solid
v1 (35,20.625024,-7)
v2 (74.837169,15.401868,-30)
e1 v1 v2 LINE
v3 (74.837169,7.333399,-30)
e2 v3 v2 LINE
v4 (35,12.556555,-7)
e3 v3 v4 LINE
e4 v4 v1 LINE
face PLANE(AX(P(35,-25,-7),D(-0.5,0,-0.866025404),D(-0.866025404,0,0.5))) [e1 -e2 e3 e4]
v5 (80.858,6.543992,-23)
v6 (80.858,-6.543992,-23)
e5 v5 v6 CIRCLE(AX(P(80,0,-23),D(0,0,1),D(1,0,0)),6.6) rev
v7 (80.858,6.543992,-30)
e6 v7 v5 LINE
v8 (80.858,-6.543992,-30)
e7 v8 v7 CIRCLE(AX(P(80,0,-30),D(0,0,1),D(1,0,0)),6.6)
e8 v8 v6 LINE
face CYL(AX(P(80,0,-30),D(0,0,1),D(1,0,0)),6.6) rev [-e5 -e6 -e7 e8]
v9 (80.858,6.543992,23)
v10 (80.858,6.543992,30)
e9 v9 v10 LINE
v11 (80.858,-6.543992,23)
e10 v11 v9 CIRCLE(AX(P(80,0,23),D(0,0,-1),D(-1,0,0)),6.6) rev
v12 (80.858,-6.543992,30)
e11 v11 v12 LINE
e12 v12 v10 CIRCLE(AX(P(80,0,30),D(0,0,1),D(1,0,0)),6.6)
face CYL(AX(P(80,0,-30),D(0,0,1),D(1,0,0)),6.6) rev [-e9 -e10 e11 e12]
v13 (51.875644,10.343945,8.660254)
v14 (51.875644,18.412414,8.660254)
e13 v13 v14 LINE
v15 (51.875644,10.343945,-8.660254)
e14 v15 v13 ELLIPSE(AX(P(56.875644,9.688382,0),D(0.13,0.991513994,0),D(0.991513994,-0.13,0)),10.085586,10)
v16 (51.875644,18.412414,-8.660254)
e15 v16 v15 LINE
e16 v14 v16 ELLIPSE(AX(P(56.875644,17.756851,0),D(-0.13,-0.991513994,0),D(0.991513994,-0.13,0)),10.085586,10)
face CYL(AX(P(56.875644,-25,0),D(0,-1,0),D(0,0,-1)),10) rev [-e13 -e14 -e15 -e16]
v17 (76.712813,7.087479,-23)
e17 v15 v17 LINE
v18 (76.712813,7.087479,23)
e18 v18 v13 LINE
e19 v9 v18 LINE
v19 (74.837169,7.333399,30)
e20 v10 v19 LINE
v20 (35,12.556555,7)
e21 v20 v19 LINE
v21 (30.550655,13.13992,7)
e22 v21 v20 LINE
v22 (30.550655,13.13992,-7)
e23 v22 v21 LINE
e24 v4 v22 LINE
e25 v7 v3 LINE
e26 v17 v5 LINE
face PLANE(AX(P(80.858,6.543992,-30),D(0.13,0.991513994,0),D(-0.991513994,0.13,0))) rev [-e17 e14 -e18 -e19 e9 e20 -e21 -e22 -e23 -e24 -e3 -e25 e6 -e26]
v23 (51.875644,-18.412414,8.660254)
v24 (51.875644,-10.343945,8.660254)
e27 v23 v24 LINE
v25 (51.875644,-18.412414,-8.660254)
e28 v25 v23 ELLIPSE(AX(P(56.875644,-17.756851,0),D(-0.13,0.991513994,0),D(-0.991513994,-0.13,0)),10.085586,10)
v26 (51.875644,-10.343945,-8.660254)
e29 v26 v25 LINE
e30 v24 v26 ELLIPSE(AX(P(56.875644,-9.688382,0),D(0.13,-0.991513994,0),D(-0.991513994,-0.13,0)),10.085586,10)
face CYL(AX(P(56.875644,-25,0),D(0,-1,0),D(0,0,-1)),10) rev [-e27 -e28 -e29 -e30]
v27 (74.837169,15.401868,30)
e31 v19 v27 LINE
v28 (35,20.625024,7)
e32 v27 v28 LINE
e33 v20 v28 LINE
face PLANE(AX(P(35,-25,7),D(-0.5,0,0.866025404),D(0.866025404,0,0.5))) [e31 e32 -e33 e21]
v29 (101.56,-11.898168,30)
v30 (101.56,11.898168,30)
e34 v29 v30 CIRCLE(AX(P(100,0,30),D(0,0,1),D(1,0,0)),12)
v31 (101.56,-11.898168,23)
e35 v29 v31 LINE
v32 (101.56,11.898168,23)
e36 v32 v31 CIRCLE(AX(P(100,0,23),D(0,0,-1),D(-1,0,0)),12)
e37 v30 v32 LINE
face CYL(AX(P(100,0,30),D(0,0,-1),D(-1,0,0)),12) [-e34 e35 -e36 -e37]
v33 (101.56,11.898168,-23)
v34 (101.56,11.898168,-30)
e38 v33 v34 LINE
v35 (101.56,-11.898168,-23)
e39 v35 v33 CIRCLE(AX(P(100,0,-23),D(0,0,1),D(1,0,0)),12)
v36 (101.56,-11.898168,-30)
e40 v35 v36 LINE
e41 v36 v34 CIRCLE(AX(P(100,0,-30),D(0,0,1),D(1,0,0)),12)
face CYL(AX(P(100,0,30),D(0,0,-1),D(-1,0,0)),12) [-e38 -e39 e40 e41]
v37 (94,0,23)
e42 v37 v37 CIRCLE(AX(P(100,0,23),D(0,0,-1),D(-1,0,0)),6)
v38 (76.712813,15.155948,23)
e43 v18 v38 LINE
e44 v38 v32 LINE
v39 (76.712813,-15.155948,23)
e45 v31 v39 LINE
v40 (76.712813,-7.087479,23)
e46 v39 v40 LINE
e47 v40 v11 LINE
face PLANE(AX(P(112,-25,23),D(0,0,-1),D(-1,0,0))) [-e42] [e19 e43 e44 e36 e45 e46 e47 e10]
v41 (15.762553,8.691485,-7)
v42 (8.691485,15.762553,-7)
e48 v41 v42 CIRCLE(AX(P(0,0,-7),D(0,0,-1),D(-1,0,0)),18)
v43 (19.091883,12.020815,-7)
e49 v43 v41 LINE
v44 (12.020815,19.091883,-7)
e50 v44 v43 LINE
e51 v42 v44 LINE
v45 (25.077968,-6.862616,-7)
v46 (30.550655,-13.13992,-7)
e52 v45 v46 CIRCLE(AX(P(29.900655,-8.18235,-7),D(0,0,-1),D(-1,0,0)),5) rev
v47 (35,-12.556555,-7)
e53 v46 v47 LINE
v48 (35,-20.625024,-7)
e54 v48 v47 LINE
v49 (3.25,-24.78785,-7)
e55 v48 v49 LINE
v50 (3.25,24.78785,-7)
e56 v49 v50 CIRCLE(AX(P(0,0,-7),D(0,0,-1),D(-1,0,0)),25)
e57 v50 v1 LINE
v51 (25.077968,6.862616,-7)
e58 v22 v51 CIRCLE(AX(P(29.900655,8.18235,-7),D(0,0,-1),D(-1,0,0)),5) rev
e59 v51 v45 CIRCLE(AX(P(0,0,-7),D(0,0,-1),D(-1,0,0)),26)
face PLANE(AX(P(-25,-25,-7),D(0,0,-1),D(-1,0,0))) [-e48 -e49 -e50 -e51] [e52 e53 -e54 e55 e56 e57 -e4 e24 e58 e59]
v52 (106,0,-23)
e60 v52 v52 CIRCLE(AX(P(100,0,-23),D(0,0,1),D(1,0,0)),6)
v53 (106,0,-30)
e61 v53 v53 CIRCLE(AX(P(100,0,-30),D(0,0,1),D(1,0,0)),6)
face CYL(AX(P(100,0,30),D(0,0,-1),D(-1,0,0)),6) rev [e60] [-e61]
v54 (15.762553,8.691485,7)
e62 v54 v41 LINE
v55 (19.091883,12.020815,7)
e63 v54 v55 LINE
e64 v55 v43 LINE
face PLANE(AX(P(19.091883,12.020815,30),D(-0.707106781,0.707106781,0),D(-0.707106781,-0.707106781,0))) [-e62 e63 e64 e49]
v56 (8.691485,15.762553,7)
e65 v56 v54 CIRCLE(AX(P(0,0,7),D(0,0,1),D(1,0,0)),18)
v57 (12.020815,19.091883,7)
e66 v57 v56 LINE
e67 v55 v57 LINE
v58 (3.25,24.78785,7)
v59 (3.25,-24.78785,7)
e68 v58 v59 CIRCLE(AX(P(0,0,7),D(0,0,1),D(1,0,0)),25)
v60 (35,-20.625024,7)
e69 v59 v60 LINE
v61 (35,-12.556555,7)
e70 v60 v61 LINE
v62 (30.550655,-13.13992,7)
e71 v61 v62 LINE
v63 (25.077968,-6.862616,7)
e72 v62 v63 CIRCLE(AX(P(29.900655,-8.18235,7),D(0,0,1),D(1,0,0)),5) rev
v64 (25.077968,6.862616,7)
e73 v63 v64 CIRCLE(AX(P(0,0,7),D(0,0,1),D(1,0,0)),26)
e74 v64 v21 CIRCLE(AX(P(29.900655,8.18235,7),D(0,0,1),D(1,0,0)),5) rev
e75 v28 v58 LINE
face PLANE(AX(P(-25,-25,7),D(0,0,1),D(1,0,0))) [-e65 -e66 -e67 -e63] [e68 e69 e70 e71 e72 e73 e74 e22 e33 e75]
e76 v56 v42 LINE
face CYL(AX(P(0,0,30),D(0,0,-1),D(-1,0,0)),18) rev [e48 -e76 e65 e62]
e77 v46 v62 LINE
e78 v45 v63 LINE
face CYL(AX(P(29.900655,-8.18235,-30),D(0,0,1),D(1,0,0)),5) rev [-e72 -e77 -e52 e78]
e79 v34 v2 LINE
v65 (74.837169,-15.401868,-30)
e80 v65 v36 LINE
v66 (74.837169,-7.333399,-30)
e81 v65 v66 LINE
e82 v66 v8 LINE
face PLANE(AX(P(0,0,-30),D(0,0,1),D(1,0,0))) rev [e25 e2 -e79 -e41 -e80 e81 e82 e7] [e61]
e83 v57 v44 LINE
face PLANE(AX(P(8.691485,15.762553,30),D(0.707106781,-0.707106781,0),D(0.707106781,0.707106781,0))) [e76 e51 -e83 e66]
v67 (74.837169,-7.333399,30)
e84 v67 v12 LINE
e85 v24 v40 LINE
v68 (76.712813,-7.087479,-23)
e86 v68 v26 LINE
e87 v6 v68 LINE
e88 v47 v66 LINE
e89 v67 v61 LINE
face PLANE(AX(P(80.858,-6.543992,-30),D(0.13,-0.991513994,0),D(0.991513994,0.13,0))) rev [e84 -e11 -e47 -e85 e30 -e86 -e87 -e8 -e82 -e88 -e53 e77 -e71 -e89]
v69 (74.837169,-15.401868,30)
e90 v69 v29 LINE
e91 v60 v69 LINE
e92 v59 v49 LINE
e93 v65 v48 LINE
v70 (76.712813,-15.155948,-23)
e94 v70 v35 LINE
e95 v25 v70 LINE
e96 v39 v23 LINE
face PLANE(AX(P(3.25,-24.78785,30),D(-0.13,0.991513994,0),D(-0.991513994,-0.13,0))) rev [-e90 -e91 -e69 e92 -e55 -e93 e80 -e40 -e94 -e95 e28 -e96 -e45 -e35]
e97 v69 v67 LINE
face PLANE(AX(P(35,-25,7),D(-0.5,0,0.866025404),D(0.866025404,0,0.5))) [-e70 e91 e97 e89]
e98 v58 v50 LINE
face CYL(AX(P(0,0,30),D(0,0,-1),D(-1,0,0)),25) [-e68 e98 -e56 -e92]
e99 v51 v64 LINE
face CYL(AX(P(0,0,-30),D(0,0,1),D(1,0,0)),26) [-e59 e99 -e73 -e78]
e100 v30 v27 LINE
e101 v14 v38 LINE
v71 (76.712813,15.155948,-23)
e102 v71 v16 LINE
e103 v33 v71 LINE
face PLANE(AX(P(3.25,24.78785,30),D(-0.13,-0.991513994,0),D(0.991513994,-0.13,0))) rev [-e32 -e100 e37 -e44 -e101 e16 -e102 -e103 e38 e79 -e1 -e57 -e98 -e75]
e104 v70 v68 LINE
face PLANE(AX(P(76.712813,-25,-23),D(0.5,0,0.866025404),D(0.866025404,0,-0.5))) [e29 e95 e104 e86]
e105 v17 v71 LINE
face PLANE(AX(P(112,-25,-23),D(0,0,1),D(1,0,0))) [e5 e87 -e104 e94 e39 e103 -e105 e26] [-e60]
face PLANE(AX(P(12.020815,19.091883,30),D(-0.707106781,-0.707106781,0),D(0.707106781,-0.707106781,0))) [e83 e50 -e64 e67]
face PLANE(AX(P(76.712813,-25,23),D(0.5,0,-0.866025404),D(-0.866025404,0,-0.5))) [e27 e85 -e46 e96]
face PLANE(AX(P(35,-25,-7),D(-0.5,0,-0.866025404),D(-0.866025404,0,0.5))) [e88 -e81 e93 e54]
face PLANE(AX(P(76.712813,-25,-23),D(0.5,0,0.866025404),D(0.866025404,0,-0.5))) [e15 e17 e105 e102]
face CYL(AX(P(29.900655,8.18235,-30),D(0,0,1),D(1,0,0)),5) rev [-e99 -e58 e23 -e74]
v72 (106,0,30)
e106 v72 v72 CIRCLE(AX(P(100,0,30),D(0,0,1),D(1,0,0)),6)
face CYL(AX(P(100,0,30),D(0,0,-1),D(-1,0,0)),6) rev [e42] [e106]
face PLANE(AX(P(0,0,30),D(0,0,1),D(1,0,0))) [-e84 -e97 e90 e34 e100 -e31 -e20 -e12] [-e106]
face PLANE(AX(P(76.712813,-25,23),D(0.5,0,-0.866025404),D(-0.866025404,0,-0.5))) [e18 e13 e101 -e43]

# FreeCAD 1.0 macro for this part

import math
import FreeCAD as App
import Part
import Sketcher
from FreeCAD import Vector
Q = App.Units.Quantity


def edges_at(feature, points):
    """Names of the edges that pass closest to the given points."""
    edges = feature.Shape.Edges
    near = lambda p: min(range(len(edges)), key=lambda i: edges[i].distToShape(Part.Vertex(*p))[0])
    return sorted({f"Edge{near(p) + 1}" for p in points})


def add_polygon(sketch, points):
    """Adds a closed chain of lines whose ends are joined by coincident constraints."""
    first, n = sketch.GeometryCount, len(points)
    for a, b in zip(points, points[1:] + points[:1]):
        sketch.addGeometry(Part.LineSegment(App.Vector(*a, 0), App.Vector(*b, 0)), False)
    for i in range(n):
        sketch.addConstraint(Sketcher.Constraint("Coincident", first + i, 2, first + (i + 1) % n, 1))

doc = App.newDocument("Part")
params = doc.addObject("Spreadsheet::Sheet", "Params")
for row, (alias, value) in enumerate([
    ("sketch1_diameter", "12 mm"),
    ("sketch1_radius", "25 mm"),
    ("sketch1_radius2", "12 mm"),
    ("sketch1_radius3", "18 mm"),
    ("sketch1_length", "10 mm"),
    ("pad1_length", "60 mm"),
    ("sketch2_radius", "5 mm"),
    ("sketch2_radius2", "26 mm"),
    ("sketch2_radius3", "6.6 mm"),
    ("sketch3_width", "60 mm"),
    ("sketch3_height", "14 mm"),
    ("sketch3_length", "46 mm"),
    ("sketch3_width2", "170.54 mm"),
    ("sketch3_height2", "93.54 mm"),
    ("fillet_radius", "10 mm"),
], start=1):
    params.set(f"A{row}", alias)
    params.set(f"B{row}", "=" + value)
    params.setAlias(f"B{row}", alias)

body = doc.addObject("PartDesign::Body", "Body")

# Sketch on XY plane
sketch1 = body.newObject("Sketcher::SketchObject", "Sketch")
sketch1.AttachmentSupport = (doc.getObject("XY_Plane"), [""])
sketch1.MapMode = "FlatFace"
sketch1.addGeometry(Part.LineSegment(Vector(101.6, 11.9, 0), Vector(3.2, 24.8, 0)), False)
sketch1.addGeometry(Part.ArcOfCircle(Part.Circle(Vector(0, 0, 0), Vector(0, 0, 1), 25), math.radians(83), math.radians(277)), False)
sketch1.addGeometry(Part.LineSegment(Vector(3.2, -24.8, 0), Vector(101.6, -11.9, 0)), False)
sketch1.addGeometry(Part.ArcOfCircle(Part.Circle(Vector(100, 0, 0), Vector(0, 0, 1), 12), math.radians(-83), math.radians(83)), False)
sketch1.addGeometry(Part.Circle(Vector(100, 0, 0), Vector(0, 0, 1), 6), False)
sketch1.addGeometry(Part.LineSegment(Vector(8.7, 15.8, 0), Vector(12, 19.1, 0)), False)
sketch1.addGeometry(Part.LineSegment(Vector(12, 19.1, 0), Vector(19.1, 12, 0)), False)
sketch1.addGeometry(Part.LineSegment(Vector(19.1, 12, 0), Vector(15.8, 8.7, 0)), False)
sketch1.addGeometry(Part.ArcOfCircle(Part.Circle(Vector(0, 0, 0), Vector(0, 0, 1), 18), math.radians(61), math.radians(389)), False)
sketch1.addConstraint(Sketcher.Constraint("Tangent", 0, 2, 1, 1))
sketch1.addConstraint(Sketcher.Constraint("Tangent", 1, 2, 2, 1))
sketch1.addConstraint(Sketcher.Constraint("Tangent", 2, 2, 3, 1))
sketch1.addConstraint(Sketcher.Constraint("Tangent", 3, 2, 0, 1))
sketch1.addConstraint(Sketcher.Constraint("Coincident", 5, 2, 6, 1))
sketch1.addConstraint(Sketcher.Constraint("Coincident", 6, 2, 7, 1))
sketch1.addConstraint(Sketcher.Constraint("Coincident", 7, 2, 8, 2))
sketch1.addConstraint(Sketcher.Constraint("Coincident", 8, 1, 5, 1))
sketch1.addConstraint(Sketcher.Constraint("Coincident", 1, 3, -1, 1))
sketch1.addConstraint(Sketcher.Constraint("Coincident", 8, 3, -1, 1))
sketch1.addConstraint(Sketcher.Constraint("Coincident", 4, 3, 3, 3))
sketch1.addConstraint(Sketcher.Constraint("PointOnObject", 3, 3, -1))
sketch1.addConstraint(Sketcher.Constraint("Perpendicular", 5, 6))
sketch1.addConstraint(Sketcher.Constraint("Perpendicular", 6, 7))
sketch1.addConstraint(Sketcher.Constraint("Equal", 5, 7))
sketch1.addConstraint(Sketcher.Constraint("Diameter", 4, 12.0))
sketch1.addConstraint(Sketcher.Constraint("Radius", 1, 25.0))
sketch1.addConstraint(Sketcher.Constraint("Radius", 3, 12.0))
sketch1.addConstraint(Sketcher.Constraint("Radius", 8, 18.0))
sketch1.addConstraint(Sketcher.Constraint("Angle", 5, Q("45 deg")))
sketch1.addConstraint(Sketcher.Constraint("Distance", 6, 10.0))
sketch1.addConstraint(Sketcher.Constraint("DistanceX", -1, 1, 3, 3, 100.0))
sketch1.addConstraint(Sketcher.Constraint("DistanceX", 7, 2, 6, 2, 3.32933))
sketch1.setExpression("Constraints[15]", "Params.sketch1_diameter")
sketch1.setExpression("Constraints[16]", "Params.sketch1_radius")
sketch1.setExpression("Constraints[17]", "Params.sketch1_radius2")
sketch1.setExpression("Constraints[18]", "Params.sketch1_radius3")
sketch1.setExpression("Constraints[20]", "Params.sketch1_length")
pad1 = body.newObject("PartDesign::Pad", "Pad")
pad1.Profile = sketch1
pad1.setExpression("Length", "Params.pad1_length")
pad1.Midplane = True

# Sketch on XY plane
sketch2 = body.newObject("Sketcher::SketchObject", "Sketch001")
sketch2.AttachmentSupport = (doc.getObject("XY_Plane"), [""])
sketch2.MapMode = "FlatFace"
sketch2.AttachmentOffset = App.Placement(Vector(0, 0, 30), App.Rotation())
sketch2.addGeometry(Part.LineSegment(Vector(81, 7, 0), Vector(31, 13, 0)), False)
sketch2.addGeometry(Part.ArcOfCircle(Part.Circle(Vector(30, 8, 0), Vector(0, 0, 1), 5), math.radians(83), math.radians(195)), False)
sketch2.addGeometry(Part.ArcOfCircle(Part.Circle(Vector(0, 0, 0), Vector(0, 0, 1), 26), math.radians(-15), math.radians(15)), False)
sketch2.addGeometry(Part.ArcOfCircle(Part.Circle(Vector(30, -8, 0), Vector(0, 0, 1), 5), math.radians(165), math.radians(277)), False)
sketch2.addGeometry(Part.LineSegment(Vector(31, -13, 0), Vector(81, -7, 0)), False)
sketch2.addGeometry(Part.ArcOfCircle(Part.Circle(Vector(80, 0, 0), Vector(0, 0, 1), 7), math.radians(-83), math.radians(83)), False)
sketch2.addConstraint(Sketcher.Constraint("Tangent", 0, 2, 1, 1))
sketch2.addConstraint(Sketcher.Constraint("Tangent", 1, 2, 2, 2))
sketch2.addConstraint(Sketcher.Constraint("Tangent", 2, 1, 3, 1))
sketch2.addConstraint(Sketcher.Constraint("Tangent", 3, 2, 4, 1))
sketch2.addConstraint(Sketcher.Constraint("Tangent", 4, 2, 5, 1))
sketch2.addConstraint(Sketcher.Constraint("Tangent", 5, 2, 0, 1))
sketch2.addConstraint(Sketcher.Constraint("Coincident", 2, 3, -1, 1))
sketch2.addConstraint(Sketcher.Constraint("Equal", 1, 3))
sketch2.addConstraint(Sketcher.Constraint("Symmetric", 0, 2, 3, 2, -1))
sketch2.addConstraint(Sketcher.Constraint("Radius", 1, 5.0))
sketch2.addConstraint(Sketcher.Constraint("Radius", 2, 26.0))
sketch2.addConstraint(Sketcher.Constraint("Radius", 5, 6.6))
sketch2.addConstraint(Sketcher.Constraint("DistanceX", -1, 1, 5, 3, 80.0))
sketch2.addConstraint(Sketcher.Constraint("DistanceX", 1, 3, 0, 2, 0.65))
sketch2.setExpression("Constraints[9]", "Params.sketch2_radius")
sketch2.setExpression("Constraints[10]", "Params.sketch2_radius2")
sketch2.setExpression("Constraints[11]", "Params.sketch2_radius3")
pocket1 = body.newObject("PartDesign::Pocket", "Pocket")
pocket1.Profile = sketch2
pocket1.Type = "ThroughAll"

# Sketch on XZ plane
sketch3 = body.newObject("Sketcher::SketchObject", "Sketch002")
sketch3.AttachmentSupport = (doc.getObject("XZ_Plane"), [""])
sketch3.MapMode = "FlatFace"
add_polygon(sketch3, [(-42, -47), (-42, 47), (129, 47), (129, -47)])  # lines 0-3
add_polygon(sketch3, [(-25, 7), (-25, -7), (35, -7), (75, -30), (112, -30), (112, -23), (77, -23), (37, 0), (77, 23), (112, 23), (112, 30), (75, 30), (35, 7)])  # lines 4-16
sketch3.addConstraint(Sketcher.Constraint("Vertical", 0))
sketch3.addConstraint(Sketcher.Constraint("Horizontal", 1))
sketch3.addConstraint(Sketcher.Constraint("Vertical", 2))
sketch3.addConstraint(Sketcher.Constraint("Horizontal", 3))
sketch3.addConstraint(Sketcher.Constraint("Vertical", 4))
sketch3.addConstraint(Sketcher.Constraint("Horizontal", 5))
sketch3.addConstraint(Sketcher.Constraint("Horizontal", 7))
sketch3.addConstraint(Sketcher.Constraint("Vertical", 8))
sketch3.addConstraint(Sketcher.Constraint("Horizontal", 9))
sketch3.addConstraint(Sketcher.Constraint("Horizontal", 12))
sketch3.addConstraint(Sketcher.Constraint("Vertical", 13))
sketch3.addConstraint(Sketcher.Constraint("Horizontal", 14))
sketch3.addConstraint(Sketcher.Constraint("Horizontal", 16))
sketch3.addConstraint(Sketcher.Constraint("Symmetric", 9, 2, 11, 2, -1))
sketch3.addConstraint(Sketcher.Constraint("Symmetric", 7, 2, 13, 2, -1))
sketch3.addConstraint(Sketcher.Constraint("Symmetric", 5, 2, 15, 2, -1))
sketch3.addConstraint(Sketcher.Constraint("PointOnObject", 10, 2, -1))
sketch3.addConstraint(Sketcher.Constraint("Parallel", 6, 10))
sketch3.addConstraint(Sketcher.Constraint("Parallel", 11, 15))
sketch3.addConstraint(Sketcher.Constraint("Equal", 6, 10))
sketch3.addConstraint(Sketcher.Constraint("DistanceX", 5, 1, 5, 2, 60.0))
sketch3.addConstraint(Sketcher.Constraint("DistanceY", 4, 2, 4, 1, 14.0))
sketch3.addConstraint(Sketcher.Constraint("Angle", 6, Q("-30 deg")))
sketch3.addConstraint(Sketcher.Constraint("Distance", 6, 46.0))
sketch3.addConstraint(Sketcher.Constraint("DistanceX", 4, 2, -1, 1, 25.0))
sketch3.addConstraint(Sketcher.Constraint("DistanceX", -1, 1, 7, 2, 112.0))
sketch3.addConstraint(Sketcher.Constraint("DistanceX", 1, 1, 1, 2, 170.54))
sketch3.addConstraint(Sketcher.Constraint("DistanceY", 0, 1, 0, 2, 93.54))
sketch3.addConstraint(Sketcher.Constraint("DistanceX", 0, 2, -1, 1, 41.77))
sketch3.addConstraint(Sketcher.Constraint("DistanceY", -1, 1, 0, 2, 46.77))
sketch3.addConstraint(Sketcher.Constraint("DistanceX", 9, 2, 9, 1, 35.287187))
sketch3.setExpression("Constraints[37]", "Params.sketch3_width")
sketch3.setExpression("Constraints[38]", "Params.sketch3_height")
sketch3.setExpression("Constraints[40]", "Params.sketch3_length")
sketch3.setExpression("Constraints[43]", "Params.sketch3_width2")
sketch3.setExpression("Constraints[44]", "Params.sketch3_height2")
pocket2 = body.newObject("PartDesign::Pocket", "Pocket001")
pocket2.Profile = sketch3
pocket2.Type = "ThroughAll"
pocket2.Midplane = True
doc.recompute()

fillet = body.newObject("PartDesign::Fillet", "Fillet")
fillet.Base = (pocket2, edges_at(pocket2, [(36.876, -16.345, 0), (36.876, 16.345, 0)]))
fillet.setExpression("Radius", "Params.fillet_radius")

doc.recompute()
